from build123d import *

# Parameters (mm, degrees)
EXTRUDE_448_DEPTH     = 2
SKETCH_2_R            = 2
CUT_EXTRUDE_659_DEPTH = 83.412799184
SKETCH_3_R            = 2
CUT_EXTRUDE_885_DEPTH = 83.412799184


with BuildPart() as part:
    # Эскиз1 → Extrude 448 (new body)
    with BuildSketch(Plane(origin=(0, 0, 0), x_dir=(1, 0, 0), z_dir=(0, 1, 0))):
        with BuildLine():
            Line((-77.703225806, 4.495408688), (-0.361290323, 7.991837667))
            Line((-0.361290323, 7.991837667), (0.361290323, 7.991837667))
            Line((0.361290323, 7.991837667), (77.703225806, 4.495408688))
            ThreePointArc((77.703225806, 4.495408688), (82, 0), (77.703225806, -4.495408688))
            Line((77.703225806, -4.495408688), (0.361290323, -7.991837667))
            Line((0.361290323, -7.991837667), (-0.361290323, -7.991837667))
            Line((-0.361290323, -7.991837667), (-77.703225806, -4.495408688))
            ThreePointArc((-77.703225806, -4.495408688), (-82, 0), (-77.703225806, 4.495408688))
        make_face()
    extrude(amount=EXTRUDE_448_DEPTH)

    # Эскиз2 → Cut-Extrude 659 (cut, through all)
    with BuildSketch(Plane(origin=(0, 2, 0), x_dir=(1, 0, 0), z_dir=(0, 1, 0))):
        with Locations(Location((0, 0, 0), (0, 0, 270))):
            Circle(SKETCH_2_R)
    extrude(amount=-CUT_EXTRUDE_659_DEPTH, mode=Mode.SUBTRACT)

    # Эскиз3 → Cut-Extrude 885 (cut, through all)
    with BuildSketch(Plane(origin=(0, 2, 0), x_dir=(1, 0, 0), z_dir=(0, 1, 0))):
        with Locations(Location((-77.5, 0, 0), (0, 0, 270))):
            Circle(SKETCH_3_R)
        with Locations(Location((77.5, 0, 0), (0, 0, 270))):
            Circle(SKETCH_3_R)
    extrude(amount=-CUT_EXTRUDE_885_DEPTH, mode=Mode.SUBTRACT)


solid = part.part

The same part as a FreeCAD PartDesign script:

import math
import FreeCAD as App
import Part
import Sketcher
Q = App.Units.Quantity

doc = App.newDocument("Part")
body = doc.addObject("PartDesign::Body", "Body")

# Sketch on XZ plane
sketch1 = body.newObject("Sketcher::SketchObject", "Sketch")
sketch1.AttachmentSupport = (doc.getObject("XZ_Plane"), [""])
sketch1.MapMode = "FlatFace"
sketch1.addGeometry(Part.LineSegment(App.Vector(-0.36129, -7.991838, 0), App.Vector(-77.703226, -4.495409, 0)), False)
sketch1.addGeometry(Part.ArcOfCircle(Part.Circle(App.Vector(-77.5, 0, 0), App.Vector(0, 0, 1), 4.5), math.radians(92.588432), math.radians(267.411568)), False)
sketch1.addGeometry(Part.LineSegment(App.Vector(-77.703226, 4.495409, 0), App.Vector(-0.36129, 7.991838, 0)), False)
sketch1.addGeometry(Part.LineSegment(App.Vector(-0.36129, 7.991838, 0), App.Vector(0.36129, 7.991838, 0)), False)
sketch1.addGeometry(Part.LineSegment(App.Vector(0.36129, 7.991838, 0), App.Vector(77.703226, 4.495409, 0)), False)
sketch1.addGeometry(Part.ArcOfCircle(Part.Circle(App.Vector(77.5, 0, 0), App.Vector(0, 0, 1), 4.5), math.radians(-87.411568), math.radians(87.411568)), False)
sketch1.addGeometry(Part.LineSegment(App.Vector(77.703226, -4.495409, 0), App.Vector(0.36129, -7.991838, 0)), False)
sketch1.addGeometry(Part.LineSegment(App.Vector(0.36129, -7.991838, 0), App.Vector(-0.36129, -7.991838, 0)), False)
sketch1.addConstraint(Sketcher.Constraint("Tangent", 0, 2, 1, 2))
sketch1.addConstraint(Sketcher.Constraint("Tangent", 1, 1, 2, 1))
sketch1.addConstraint(Sketcher.Constraint("Coincident", 2, 2, 3, 1))
sketch1.addConstraint(Sketcher.Constraint("Coincident", 3, 2, 4, 1))
sketch1.addConstraint(Sketcher.Constraint("Tangent", 4, 2, 5, 2))
sketch1.addConstraint(Sketcher.Constraint("Tangent", 5, 1, 6, 1))
sketch1.addConstraint(Sketcher.Constraint("Coincident", 6, 2, 7, 1))
sketch1.addConstraint(Sketcher.Constraint("Coincident", 7, 2, 0, 1))
sketch1.addConstraint(Sketcher.Constraint("Horizontal", 3))
sketch1.addConstraint(Sketcher.Constraint("Horizontal", 7))
sketch1.addConstraint(Sketcher.Constraint("Equal", 1, 5))
sketch1.addConstraint(Sketcher.Constraint("Symmetric", 1, 3, 5, 3, -1, 1))
sketch1.addConstraint(Sketcher.Constraint("Symmetric", 2, 2, 6, 2, -1, 1))
sketch1.addConstraint(Sketcher.Constraint("Symmetric", 1, 1, 4, 2, -2))
sketch1.addConstraint(Sketcher.Constraint("Parallel", 0, 4))
sketch1.addConstraint(Sketcher.Constraint("Radius", 1, Q("4.5 mm")))
sketch1.addConstraint(Sketcher.Constraint("DistanceX", 1, 3, 5, 3, Q("155 mm")))
sketch1.addConstraint(Sketcher.Constraint("DistanceX", 3, 1, 3, 2, Q("0.722581 mm")))
sketch1.addConstraint(Sketcher.Constraint("DistanceY", 1, 1, 2, 2, Q("3.496429 mm")))
pad1 = body.newObject("PartDesign::Pad", "Pad")
pad1.Profile = sketch1
pad1.Length = 2
pad1.Reversed = True

# Sketch on XZ plane
sketch2 = body.newObject("Sketcher::SketchObject", "Sketch001")
sketch2.AttachmentSupport = (doc.getObject("XZ_Plane"), [""])
sketch2.MapMode = "FlatFace"
sketch2.AttachmentOffset = App.Placement(App.Vector(0, 0, -2), App.Rotation())
sketch2.addGeometry(Part.Circle(App.Vector(0, 0, 0), App.Vector(0, 0, 1), 2), False)
sketch2.addConstraint(Sketcher.Constraint("Coincident", 0, 3, -1, 1))
sketch2.addConstraint(Sketcher.Constraint("Diameter", 0, Q("4 mm")))
pocket1 = body.newObject("PartDesign::Pocket", "Pocket")
pocket1.Profile = sketch2
pocket1.Type = "ThroughAll"
pocket1.Reversed = True

# Sketch on XZ plane
sketch3 = body.newObject("Sketcher::SketchObject", "Sketch002")
sketch3.AttachmentSupport = (doc.getObject("XZ_Plane"), [""])
sketch3.MapMode = "FlatFace"
sketch3.AttachmentOffset = App.Placement(App.Vector(0, 0, -2), App.Rotation())
sketch3.addGeometry(Part.Circle(App.Vector(-77.5, 0, 0), App.Vector(0, 0, 1), 2), False)
sketch3.addGeometry(Part.Circle(App.Vector(77.5, 0, 0), App.Vector(0, 0, 1), 2), False)
sketch3.addConstraint(Sketcher.Constraint("Equal", 0, 1))
sketch3.addConstraint(Sketcher.Constraint("Symmetric", 0, 3, 1, 3, -1, 1))
sketch3.addConstraint(Sketcher.Constraint("PointOnObject", 0, 3, -1))
sketch3.addConstraint(Sketcher.Constraint("Diameter", 0, Q("4 mm")))
sketch3.addConstraint(Sketcher.Constraint("DistanceX", 0, 3, 1, 3, Q("155 mm")))
pocket2 = body.newObject("PartDesign::Pocket", "Pocket001")
pocket2.Profile = sketch3
pocket2.Type = "ThroughAll"
pocket2.Reversed = True

doc.recompute()
